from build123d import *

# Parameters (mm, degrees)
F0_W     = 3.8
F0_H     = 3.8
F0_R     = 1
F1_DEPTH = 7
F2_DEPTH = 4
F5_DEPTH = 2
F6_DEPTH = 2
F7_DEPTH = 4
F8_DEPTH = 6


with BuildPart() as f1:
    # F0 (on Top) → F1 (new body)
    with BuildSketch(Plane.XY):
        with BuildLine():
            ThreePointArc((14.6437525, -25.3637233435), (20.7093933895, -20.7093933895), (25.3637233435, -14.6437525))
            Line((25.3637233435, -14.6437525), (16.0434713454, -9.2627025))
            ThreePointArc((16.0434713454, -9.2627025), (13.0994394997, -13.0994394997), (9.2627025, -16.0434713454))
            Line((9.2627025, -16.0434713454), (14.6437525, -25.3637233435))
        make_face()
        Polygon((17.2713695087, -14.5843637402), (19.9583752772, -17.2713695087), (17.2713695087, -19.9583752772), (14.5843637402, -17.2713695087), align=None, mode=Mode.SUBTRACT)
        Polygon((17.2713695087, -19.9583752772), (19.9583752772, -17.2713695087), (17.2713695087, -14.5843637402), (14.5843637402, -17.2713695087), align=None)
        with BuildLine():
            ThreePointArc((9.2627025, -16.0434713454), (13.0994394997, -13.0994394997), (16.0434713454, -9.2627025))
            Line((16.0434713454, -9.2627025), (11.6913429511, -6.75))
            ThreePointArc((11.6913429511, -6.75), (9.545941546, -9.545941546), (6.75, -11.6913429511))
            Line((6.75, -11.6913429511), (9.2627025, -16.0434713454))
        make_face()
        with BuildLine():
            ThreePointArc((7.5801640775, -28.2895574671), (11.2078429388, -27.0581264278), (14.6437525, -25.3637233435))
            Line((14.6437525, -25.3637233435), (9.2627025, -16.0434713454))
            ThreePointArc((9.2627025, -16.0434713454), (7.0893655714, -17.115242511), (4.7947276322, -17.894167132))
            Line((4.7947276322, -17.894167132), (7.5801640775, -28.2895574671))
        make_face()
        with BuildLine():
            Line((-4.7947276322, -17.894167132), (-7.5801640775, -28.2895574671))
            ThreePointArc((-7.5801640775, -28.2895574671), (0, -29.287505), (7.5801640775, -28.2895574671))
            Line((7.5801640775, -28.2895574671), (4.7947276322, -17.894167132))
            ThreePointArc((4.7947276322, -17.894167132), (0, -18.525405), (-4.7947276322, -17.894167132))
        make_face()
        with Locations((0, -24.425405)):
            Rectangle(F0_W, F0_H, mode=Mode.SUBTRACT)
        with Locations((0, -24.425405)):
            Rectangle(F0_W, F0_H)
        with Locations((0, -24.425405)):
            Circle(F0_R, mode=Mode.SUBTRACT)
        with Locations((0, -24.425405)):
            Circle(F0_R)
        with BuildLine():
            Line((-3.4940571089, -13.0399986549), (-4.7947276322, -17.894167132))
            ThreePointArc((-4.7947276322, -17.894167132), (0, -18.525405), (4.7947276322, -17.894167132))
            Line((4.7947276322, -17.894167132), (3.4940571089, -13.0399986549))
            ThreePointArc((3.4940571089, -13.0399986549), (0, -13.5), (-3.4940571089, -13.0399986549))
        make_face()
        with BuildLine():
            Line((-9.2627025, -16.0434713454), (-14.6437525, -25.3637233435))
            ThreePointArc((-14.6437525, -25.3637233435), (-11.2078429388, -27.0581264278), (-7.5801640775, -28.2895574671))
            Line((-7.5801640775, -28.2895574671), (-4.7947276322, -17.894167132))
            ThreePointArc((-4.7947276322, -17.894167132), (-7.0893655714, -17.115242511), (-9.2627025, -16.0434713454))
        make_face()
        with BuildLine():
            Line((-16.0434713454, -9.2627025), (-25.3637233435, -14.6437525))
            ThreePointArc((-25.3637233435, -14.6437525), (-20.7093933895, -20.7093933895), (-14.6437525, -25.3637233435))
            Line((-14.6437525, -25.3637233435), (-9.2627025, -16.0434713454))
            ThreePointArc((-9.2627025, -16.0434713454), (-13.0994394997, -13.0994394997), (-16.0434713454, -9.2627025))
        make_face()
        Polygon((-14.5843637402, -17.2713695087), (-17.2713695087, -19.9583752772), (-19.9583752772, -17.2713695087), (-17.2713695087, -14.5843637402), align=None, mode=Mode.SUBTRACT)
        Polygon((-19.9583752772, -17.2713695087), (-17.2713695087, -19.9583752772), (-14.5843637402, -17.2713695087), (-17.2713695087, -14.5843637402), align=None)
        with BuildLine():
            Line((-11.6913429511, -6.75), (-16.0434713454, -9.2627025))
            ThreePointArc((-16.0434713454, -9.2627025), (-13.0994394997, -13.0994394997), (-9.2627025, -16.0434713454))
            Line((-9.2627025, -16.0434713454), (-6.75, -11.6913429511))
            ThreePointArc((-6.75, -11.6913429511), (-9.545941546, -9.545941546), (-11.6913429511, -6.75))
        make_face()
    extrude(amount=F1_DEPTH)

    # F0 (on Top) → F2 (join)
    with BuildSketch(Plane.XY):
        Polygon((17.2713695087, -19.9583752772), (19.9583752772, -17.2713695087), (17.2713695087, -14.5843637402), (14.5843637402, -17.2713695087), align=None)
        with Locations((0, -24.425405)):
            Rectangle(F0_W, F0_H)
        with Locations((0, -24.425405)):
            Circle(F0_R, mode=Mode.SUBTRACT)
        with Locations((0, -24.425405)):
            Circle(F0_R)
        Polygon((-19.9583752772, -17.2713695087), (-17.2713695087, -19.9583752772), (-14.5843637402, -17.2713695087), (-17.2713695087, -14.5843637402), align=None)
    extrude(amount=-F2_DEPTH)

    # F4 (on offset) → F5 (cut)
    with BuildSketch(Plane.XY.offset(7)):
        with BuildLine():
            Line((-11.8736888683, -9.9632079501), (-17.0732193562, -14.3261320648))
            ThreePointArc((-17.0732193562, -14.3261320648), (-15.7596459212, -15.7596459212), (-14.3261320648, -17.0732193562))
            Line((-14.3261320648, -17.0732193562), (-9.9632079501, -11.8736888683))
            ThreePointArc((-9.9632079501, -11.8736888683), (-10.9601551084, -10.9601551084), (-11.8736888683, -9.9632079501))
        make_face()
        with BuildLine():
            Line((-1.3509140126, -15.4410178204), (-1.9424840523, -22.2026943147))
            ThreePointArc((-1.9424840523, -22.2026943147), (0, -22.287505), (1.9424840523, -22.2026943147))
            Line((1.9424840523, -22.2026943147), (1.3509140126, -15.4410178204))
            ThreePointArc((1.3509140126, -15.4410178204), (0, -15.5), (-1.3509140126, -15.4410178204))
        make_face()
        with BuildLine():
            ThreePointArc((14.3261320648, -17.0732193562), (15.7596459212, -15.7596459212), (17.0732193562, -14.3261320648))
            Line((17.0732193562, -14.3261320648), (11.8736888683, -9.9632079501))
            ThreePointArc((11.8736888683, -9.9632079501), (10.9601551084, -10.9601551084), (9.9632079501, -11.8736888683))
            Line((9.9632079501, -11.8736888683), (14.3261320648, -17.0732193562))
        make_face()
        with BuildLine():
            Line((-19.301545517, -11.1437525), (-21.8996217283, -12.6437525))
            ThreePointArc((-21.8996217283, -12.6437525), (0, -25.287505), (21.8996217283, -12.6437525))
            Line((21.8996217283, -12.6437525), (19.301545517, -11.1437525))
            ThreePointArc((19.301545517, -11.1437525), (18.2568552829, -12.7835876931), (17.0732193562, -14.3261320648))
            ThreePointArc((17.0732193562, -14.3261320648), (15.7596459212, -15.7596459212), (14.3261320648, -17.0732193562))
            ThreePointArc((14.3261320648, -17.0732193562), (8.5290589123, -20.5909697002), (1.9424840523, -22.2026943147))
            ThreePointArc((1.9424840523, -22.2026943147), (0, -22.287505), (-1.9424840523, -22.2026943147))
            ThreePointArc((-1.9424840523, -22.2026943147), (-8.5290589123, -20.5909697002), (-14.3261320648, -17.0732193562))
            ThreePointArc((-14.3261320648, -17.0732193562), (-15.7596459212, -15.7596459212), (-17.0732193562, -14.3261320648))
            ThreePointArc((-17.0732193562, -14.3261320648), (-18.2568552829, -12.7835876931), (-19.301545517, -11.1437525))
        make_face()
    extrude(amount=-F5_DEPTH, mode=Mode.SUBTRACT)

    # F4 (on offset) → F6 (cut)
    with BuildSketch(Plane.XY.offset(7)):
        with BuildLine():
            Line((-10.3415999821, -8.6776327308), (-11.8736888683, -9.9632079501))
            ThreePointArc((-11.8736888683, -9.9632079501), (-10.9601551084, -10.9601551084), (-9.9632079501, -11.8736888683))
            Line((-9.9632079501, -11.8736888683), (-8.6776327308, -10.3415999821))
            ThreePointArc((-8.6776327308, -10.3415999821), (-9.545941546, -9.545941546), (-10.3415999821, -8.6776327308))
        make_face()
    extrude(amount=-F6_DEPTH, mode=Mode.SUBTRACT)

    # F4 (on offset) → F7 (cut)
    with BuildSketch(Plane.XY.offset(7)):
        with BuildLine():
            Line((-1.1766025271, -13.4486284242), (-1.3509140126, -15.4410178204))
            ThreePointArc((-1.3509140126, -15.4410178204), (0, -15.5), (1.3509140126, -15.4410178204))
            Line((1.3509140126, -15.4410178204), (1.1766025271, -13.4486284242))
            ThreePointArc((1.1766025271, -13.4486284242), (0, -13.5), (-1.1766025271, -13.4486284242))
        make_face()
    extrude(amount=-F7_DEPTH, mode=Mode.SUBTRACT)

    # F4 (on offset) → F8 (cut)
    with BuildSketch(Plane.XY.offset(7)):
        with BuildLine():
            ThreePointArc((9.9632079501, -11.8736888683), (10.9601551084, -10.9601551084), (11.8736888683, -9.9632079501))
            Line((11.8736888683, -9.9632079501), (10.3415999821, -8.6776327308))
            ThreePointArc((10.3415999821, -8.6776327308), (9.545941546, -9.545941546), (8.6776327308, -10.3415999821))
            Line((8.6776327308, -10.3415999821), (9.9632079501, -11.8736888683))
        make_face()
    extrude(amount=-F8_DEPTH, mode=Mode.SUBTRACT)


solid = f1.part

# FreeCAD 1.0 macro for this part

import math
import FreeCAD as App
import Part
import Sketcher
from FreeCAD import Vector
Q = App.Units.Quantity


def add_polygon(sketch, points):
    """Adds a closed chain of lines whose ends are joined by coincident constraints."""
    first, n = sketch.GeometryCount, len(points)
    for a, b in zip(points, points[1:] + points[:1]):
        sketch.addGeometry(Part.LineSegment(App.Vector(*a, 0), App.Vector(*b, 0)), False)
    for i in range(n):
        sketch.addConstraint(Sketcher.Constraint("Coincident", first + i, 2, first + (i + 1) % n, 1))

doc = App.newDocument("Part")
params = doc.addObject("Spreadsheet::Sheet", "Params")
for row, (alias, value) in enumerate([
    ("sketch1_radius", "13.5 mm"),
    ("pad1_length", "7 mm"),
    ("sketch2_width", "3.8 mm"),
    ("sketch2_length", "3.8 mm"),
    ("pad2_length", "4 mm"),
    ("sketch3_radius", "15.5 mm"),
    ("sketch3_length", "3 mm"),
    ("pocket1_length", "2 mm"),
    ("sketch4_radius", "15.5 mm"),
    ("sketch4_radius2", "13.5 mm"),
    ("pocket2_length", "2 mm"),
    ("sketch5_radius", "15.5 mm"),
    ("sketch5_radius2", "13.5 mm"),
    ("pocket3_length", "4 mm"),
    ("sketch6_radius", "15.5 mm"),
    ("sketch6_radius2", "13.5 mm"),
    ("pocket4_length", "6 mm"),
], start=1):
    params.set(f"A{row}", alias)
    params.set(f"B{row}", "=" + value)
    params.setAlias(f"B{row}", alias)

body = doc.addObject("PartDesign::Body", "Body")

sketch1 = body.newObject("Sketcher::SketchObject", "Sketch")
sketch1.AttachmentSupport = (doc.getObject("XY_Plane"), [""])
sketch1.MapMode = "FlatFace"
sketch1.addGeometry([
    Part.ArcOfCircle(Part.Circle(Vector(0, 0, 0), Vector(0, 0, 1), 29.287505), math.radians(-60), math.radians(-30)),
    Part.LineSegment(Vector(25.363723, -14.643752, 0), Vector(16.043471, -9.262702, 0)),
    Part.LineSegment(Vector(16.043471, -9.262702, 0), Vector(11.691343, -6.75, 0)),
    Part.ArcOfCircle(Part.Circle(Vector(0, 0, 0), Vector(0, 0, 1), 13.5), math.radians(-60), math.radians(-30)),
    Part.LineSegment(Vector(6.75, -11.691343, 0), Vector(9.262702, -16.043471, 0)),
    Part.ArcOfCircle(Part.Circle(Vector(0, 0, 0), Vector(0, 0, 1), 18.525405), math.radians(-75), math.radians(-60)),
    Part.LineSegment(Vector(4.794728, -17.894167, 0), Vector(3.494057, -13.039999, 0)),
    Part.ArcOfCircle(Part.Circle(Vector(0, 0, 0), Vector(0, 0, 1), 13.5), math.radians(-105), math.radians(-75)),
    Part.LineSegment(Vector(-3.494057, -13.039999, 0), Vector(-4.794728, -17.894167, 0)),
    Part.ArcOfCircle(Part.Circle(Vector(0, 0, 0), Vector(0, 0, 1), 18.525405), math.radians(-120), math.radians(-105)),
    Part.LineSegment(Vector(-9.262702, -16.043471, 0), Vector(-6.75, -11.691343, 0)),
    Part.ArcOfCircle(Part.Circle(Vector(0, 0, 0), Vector(0, 0, 1), 13.5), math.radians(-150), math.radians(-120)),
    Part.LineSegment(Vector(-11.691343, -6.75, 0), Vector(-16.043471, -9.262702, 0)),
    Part.LineSegment(Vector(-16.043471, -9.262702, 0), Vector(-25.363723, -14.643752, 0)),
    Part.ArcOfCircle(Part.Circle(Vector(0, 0, 0), Vector(0, 0, 1), 29.287505), math.radians(-150), math.radians(-120)),
    Part.ArcOfCircle(Part.Circle(Vector(0, 0, 0), Vector(0, 0, 1), 29.287505), math.radians(-120), math.radians(-105)),
    Part.ArcOfCircle(Part.Circle(Vector(0, 0, 0), Vector(0, 0, 1), 29.287505), math.radians(-105), math.radians(-75)),
    Part.ArcOfCircle(Part.Circle(Vector(0, 0, 0), Vector(0, 0, 1), 29.287505), math.radians(-75), math.radians(-60)),
], False)
sketch1.addConstraint([
    Sketcher.Constraint("Coincident", 0, 2, 1, 1),
    Sketcher.Constraint("Coincident", 1, 2, 2, 1),
    Sketcher.Constraint("Coincident", 2, 2, 3, 2),
    Sketcher.Constraint("Coincident", 3, 1, 4, 1),
    Sketcher.Constraint("Coincident", 4, 2, 5, 2),
    Sketcher.Constraint("Coincident", 5, 1, 6, 1),
    Sketcher.Constraint("Coincident", 6, 2, 7, 2),
    Sketcher.Constraint("Coincident", 7, 1, 8, 1),
    Sketcher.Constraint("Coincident", 8, 2, 9, 2),
    Sketcher.Constraint("Coincident", 9, 1, 10, 1),
    Sketcher.Constraint("Coincident", 10, 2, 11, 2),
    Sketcher.Constraint("Coincident", 11, 1, 12, 1),
    Sketcher.Constraint("Coincident", 12, 2, 13, 1),
    Sketcher.Constraint("Coincident", 13, 2, 14, 1),
    Sketcher.Constraint("Tangent", 14, 2, 15, 1),
    Sketcher.Constraint("Tangent", 15, 2, 16, 1),
    Sketcher.Constraint("Tangent", 16, 2, 17, 1),
    Sketcher.Constraint("Tangent", 17, 2, 0, 1),
    Sketcher.Constraint("Coincident", 0, 3, -1, 1),
    Sketcher.Constraint("Coincident", 3, 3, -1, 1),
    Sketcher.Constraint("Coincident", 5, 3, -1, 1),
    Sketcher.Constraint("Coincident", 7, 3, -1, 1),
    Sketcher.Constraint("Coincident", 9, 3, -1, 1),
    Sketcher.Constraint("Coincident", 11, 3, -1, 1),
    Sketcher.Constraint("Coincident", 14, 3, -1, 1),
    Sketcher.Constraint("Coincident", 16, 3, -1, 1),
    Sketcher.Constraint("Equal", 3, 7),
    Sketcher.Constraint("Equal", 5, 9),
    Sketcher.Constraint("Equal", 7, 11),
    Sketcher.Constraint("Symmetric", 1, 2, 12, 2, -2),
    Sketcher.Constraint("Parallel", 1, 2),
    Sketcher.Constraint("Perpendicular", 2, 10),
    Sketcher.Constraint("Perpendicular", 4, 12),
    Sketcher.Constraint("Parallel", 12, 13),
    Sketcher.Constraint("Horizontal", 6, 2, 7, 1),
    Sketcher.Constraint("Horizontal", 5, 1, 8, 2),
    Sketcher.Constraint("Horizontal", 4, 2, 9, 1),
    Sketcher.Constraint("Horizontal", 3, 1, 10, 2),
    Sketcher.Constraint("Horizontal", 15, 2, 16, 2),
    Sketcher.Constraint("Horizontal", 14, 2, 17, 2),
    Sketcher.Constraint("Equal", 2, 4),
    Sketcher.Constraint("Radius", 3, 13.5),
    Sketcher.Constraint("Angle", 1, Q("150 deg")),
    Sketcher.Constraint("Angle", 6, Q("105 deg")),
    Sketcher.Constraint("DistanceY", 2, 2, -1, 1, 6.75),
    Sketcher.Constraint("DistanceX", -1, 1, 3, 1, 6.75),
    Sketcher.Constraint("DistanceY", 6, 2, -1, 1, 13.039999),
    Sketcher.Constraint("Radius", 0, 29.287505),
    Sketcher.Constraint("Radius", 5, 18.525405),
    Sketcher.Constraint("DistanceX", 14, 2, 9, 1, 5.38105),
    Sketcher.Constraint("DistanceX", 14, 2, 15, 2, 7.063588),
])
sketch1.setExpression("Constraints[41]", "Params.sketch1_radius")
pad1 = body.newObject("PartDesign::Pad", "Pad")
pad1.Profile = sketch1
pad1.setExpression("Length", "Params.pad1_length")

sketch2 = body.newObject("Sketcher::SketchObject", "Sketch001")
sketch2.AttachmentSupport = (doc.getObject("XY_Plane"), [""])
sketch2.MapMode = "FlatFace"
add_polygon(sketch2, [(17.27137, -19.958375), (19.958375, -17.27137), (17.27137, -14.584364), (14.584364, -17.27137)])
add_polygon(sketch2, [(-1.9, -22.525405), (-1.9, -26.325405), (1.9, -26.325405), (1.9, -22.525405)])
add_polygon(sketch2, [(-19.958375, -17.27137), (-17.27137, -19.958375), (-14.584364, -17.27137), (-17.27137, -14.584364)])
sketch2.addConstraint([
    Sketcher.Constraint("Vertical", 4),
    Sketcher.Constraint("Horizontal", 5),
    Sketcher.Constraint("Vertical", 6),
    Sketcher.Constraint("Horizontal", 7),
    Sketcher.Constraint("Symmetric", 3, 2, 8, 2, -2),
    Sketcher.Constraint("Symmetric", 2, 2, 9, 2, -2),
    Sketcher.Constraint("Symmetric", 1, 2, 10, 2, -2),
    Sketcher.Constraint("Symmetric", 0, 2, 11, 2, -2),
    Sketcher.Constraint("Perpendicular", 0, 1),
    Sketcher.Constraint("Perpendicular", 1, 2),
    Sketcher.Constraint("Perpendicular", 2, 3),
    Sketcher.Constraint("Parallel", 3, 8),
    Sketcher.Constraint("Horizontal", 0, 2, 2, 2),
    Sketcher.Constraint("Equal", 7, 4),
    Sketcher.Constraint("DistanceX", 5, 1, 5, 2, 3.8),
    Sketcher.Constraint("Distance", 0, 3.8),
    Sketcher.Constraint("DistanceX", 4, 2, -1, 1, 1.9),
    Sketcher.Constraint("DistanceY", 0, 2, -1, 1, 17.27137),
    Sketcher.Constraint("DistanceX", -1, 1, 1, 2, 17.27137),
    Sketcher.Constraint("DistanceY", 4, 2, 3, 2, 6.36703),
])
sketch2.setExpression("Constraints[26]", "Params.sketch2_width")
sketch2.setExpression("Constraints[27]", "Params.sketch2_length")
pad2 = body.newObject("PartDesign::Pad", "Pad001")
pad2.Profile = sketch2
pad2.setExpression("Length", "Params.pad2_length")
pad2.Reversed = True

sketch3 = body.newObject("Sketcher::SketchObject", "Sketch002")
sketch3.AttachmentSupport = (doc.getObject("XY_Plane"), [""])
sketch3.MapMode = "FlatFace"
sketch3.AttachmentOffset = App.Placement(Vector(0, 0, 7), App.Rotation())
sketch3.addGeometry([
    Part.LineSegment(Vector(-11.873689, -9.963208, 0), Vector(-17.073219, -14.326132, 0)),
    Part.ArcOfCircle(Part.Circle(Vector(0, 0, 0), Vector(0, 0, 1), 22.287505), math.radians(-150), math.radians(-140)),
    Part.LineSegment(Vector(-19.301546, -11.143752, 0), Vector(-21.899622, -12.643752, 0)),
    Part.ArcOfCircle(Part.Circle(Vector(0, 0, 0), Vector(0, 0, 1), 25.287505), math.radians(-150), math.radians(-30)),
    Part.LineSegment(Vector(21.899622, -12.643752, 0), Vector(19.301546, -11.143752, 0)),
    Part.ArcOfCircle(Part.Circle(Vector(0, 0, 0), Vector(0, 0, 1), 22.287505), math.radians(-40), math.radians(-30)),
    Part.LineSegment(Vector(17.073219, -14.326132, 0), Vector(11.873689, -9.963208, 0)),
    Part.ArcOfCircle(Part.Circle(Vector(0, 0, 0), Vector(0, 0, 1), 15.5), math.radians(-50), math.radians(-40)),
    Part.LineSegment(Vector(9.963208, -11.873689, 0), Vector(14.326132, -17.073219, 0)),
    Part.ArcOfCircle(Part.Circle(Vector(0, 0, 0), Vector(0, 0, 1), 22.287505), math.radians(-85), math.radians(-50)),
    Part.LineSegment(Vector(1.942484, -22.202694, 0), Vector(1.350914, -15.441018, 0)),
    Part.ArcOfCircle(Part.Circle(Vector(0, 0, 0), Vector(0, 0, 1), 15.5), math.radians(-95), math.radians(-85)),
    Part.LineSegment(Vector(-1.350914, -15.441018, 0), Vector(-1.942484, -22.202694, 0)),
    Part.ArcOfCircle(Part.Circle(Vector(0, 0, 0), Vector(0, 0, 1), 22.287505), math.radians(-130), math.radians(-95)),
    Part.LineSegment(Vector(-14.326132, -17.073219, 0), Vector(-9.963208, -11.873689, 0)),
    Part.ArcOfCircle(Part.Circle(Vector(0, 0, 0), Vector(0, 0, 1), 15.5), math.radians(-140), math.radians(-130)),
], False)
sketch3.addConstraint([
    Sketcher.Constraint("Coincident", 0, 2, 1, 2),
    Sketcher.Constraint("Coincident", 1, 1, 2, 1),
    Sketcher.Constraint("Coincident", 2, 2, 3, 1),
    Sketcher.Constraint("Coincident", 3, 2, 4, 1),
    Sketcher.Constraint("Coincident", 4, 2, 5, 2),
    Sketcher.Constraint("Coincident", 5, 1, 6, 1),
    Sketcher.Constraint("Coincident", 6, 2, 7, 2),
    Sketcher.Constraint("Coincident", 7, 1, 8, 1),
    Sketcher.Constraint("Coincident", 8, 2, 9, 2),
    Sketcher.Constraint("Coincident", 9, 1, 10, 1),
    Sketcher.Constraint("Coincident", 10, 2, 11, 2),
    Sketcher.Constraint("Coincident", 11, 1, 12, 1),
    Sketcher.Constraint("Coincident", 12, 2, 13, 2),
    Sketcher.Constraint("Coincident", 13, 1, 14, 1),
    Sketcher.Constraint("Coincident", 14, 2, 15, 2),
    Sketcher.Constraint("Coincident", 15, 1, 0, 1),
    Sketcher.Constraint("Coincident", 1, 3, -1, 1),
    Sketcher.Constraint("Coincident", 3, 3, -1, 1),
    Sketcher.Constraint("Coincident", 5, 3, -1, 1),
    Sketcher.Constraint("Coincident", 7, 3, -1, 1),
    Sketcher.Constraint("Coincident", 9, 3, -1, 1),
    Sketcher.Constraint("Coincident", 11, 3, -1, 1),
    Sketcher.Constraint("Coincident", 13, 3, -1, 1),
    Sketcher.Constraint("Coincident", 15, 3, -1, 1),
    Sketcher.Constraint("Equal", 1, 5),
    Sketcher.Constraint("Equal", 5, 9),
    Sketcher.Constraint("Equal", 7, 11),
    Sketcher.Constraint("Equal", 9, 13),
    Sketcher.Constraint("Equal", 11, 15),
    Sketcher.Constraint("Perpendicular", 0, 8),
    Sketcher.Constraint("Perpendicular", 6, 14),
    Sketcher.Constraint("Horizontal", 2, 2, 3, 2),
    Sketcher.Constraint("Horizontal", 1, 1, 4, 2),
    Sketcher.Constraint("Horizontal", 0, 2, 5, 1),
    Sketcher.Constraint("Horizontal", 10, 2, 11, 1),
    Sketcher.Constraint("Horizontal", 9, 1, 12, 2),
    Sketcher.Constraint("Horizontal", 8, 2, 13, 1),
    Sketcher.Constraint("Horizontal", 7, 1, 14, 2),
    Sketcher.Constraint("Radius", 7, 15.5),
    Sketcher.Constraint("Angle", 0, Q("-140 deg")),
    Sketcher.Constraint("Angle", 2, Q("-150 deg")),
    Sketcher.Constraint("Angle", 10, Q("95 deg")),
    Sketcher.Constraint("Distance", 2, 3.0),
    Sketcher.Constraint("Radius", 1, 22.287505),
    Sketcher.Constraint("DistanceY", 8, 2, 10, 2, 1.632202),
    Sketcher.Constraint("DistanceX", 11, 1, 9, 1, 3.293398),
    Sketcher.Constraint("DistanceX", 0, 2, -1, 1, 17.073219),
    Sketcher.Constraint("DistanceX", 2, 2, -1, 1, 21.899622),
])
sketch3.setExpression("Constraints[38]", "Params.sketch3_radius")
sketch3.setExpression("Constraints[42]", "Params.sketch3_length")
pocket1 = body.newObject("PartDesign::Pocket", "Pocket")
pocket1.Profile = sketch3
pocket1.setExpression("Length", "Params.pocket1_length")

sketch4 = body.newObject("Sketcher::SketchObject", "Sketch003")
sketch4.AttachmentSupport = (doc.getObject("XY_Plane"), [""])
sketch4.MapMode = "FlatFace"
sketch4.AttachmentOffset = App.Placement(Vector(0, 0, 7), App.Rotation())
sketch4.addGeometry([
    Part.LineSegment(Vector(-10.3416, -8.677633, 0), Vector(-11.873689, -9.963208, 0)),
    Part.ArcOfCircle(Part.Circle(Vector(0, 0, 0), Vector(0, 0, 1), 15.5), math.radians(-140), math.radians(-130)),
    Part.LineSegment(Vector(-9.963208, -11.873689, 0), Vector(-8.677633, -10.3416, 0)),
    Part.ArcOfCircle(Part.Circle(Vector(0, 0, 0), Vector(0, 0, 1), 13.5), math.radians(-140), math.radians(-130)),
], False)
sketch4.addConstraint([
    Sketcher.Constraint("Coincident", 0, 2, 1, 1),
    Sketcher.Constraint("Coincident", 1, 2, 2, 1),
    Sketcher.Constraint("Coincident", 2, 2, 3, 2),
    Sketcher.Constraint("Coincident", 3, 1, 0, 1),
    Sketcher.Constraint("Coincident", 1, 3, -1, 1),
    Sketcher.Constraint("Coincident", 3, 3, -1, 1),
    Sketcher.Constraint("Radius", 1, 15.5),
    Sketcher.Constraint("Radius", 3, 13.5),
    Sketcher.Constraint("Angle", 0, Q("-140 deg")),
    Sketcher.Constraint("Angle", 2, Q("50 deg")),
    Sketcher.Constraint("DistanceY", 2, 2, -1, 1, 10.3416),
    Sketcher.Constraint("DistanceX", 3, 1, -1, 1, 10.3416),
])
sketch4.setExpression("Constraints[6]", "Params.sketch4_radius")
sketch4.setExpression("Constraints[7]", "Params.sketch4_radius2")
pocket2 = body.newObject("PartDesign::Pocket", "Pocket001")
pocket2.Profile = sketch4
pocket2.setExpression("Length", "Params.pocket2_length")

sketch5 = body.newObject("Sketcher::SketchObject", "Sketch004")
sketch5.AttachmentSupport = (doc.getObject("XY_Plane"), [""])
sketch5.MapMode = "FlatFace"
sketch5.AttachmentOffset = App.Placement(Vector(0, 0, 7), App.Rotation())
sketch5.addGeometry([
    Part.LineSegment(Vector(-1.176603, -13.448628, 0), Vector(-1.350914, -15.441018, 0)),
    Part.ArcOfCircle(Part.Circle(Vector(0, 0, 0), Vector(0, 0, 1), 15.5), math.radians(-95), math.radians(-85)),
    Part.LineSegment(Vector(1.350914, -15.441018, 0), Vector(1.176603, -13.448628, 0)),
    Part.ArcOfCircle(Part.Circle(Vector(0, 0, 0), Vector(0, 0, 1), 13.5), math.radians(-95), math.radians(-85)),
], False)
sketch5.addConstraint([
    Sketcher.Constraint("Coincident", 0, 2, 1, 1),
    Sketcher.Constraint("Coincident", 1, 2, 2, 1),
    Sketcher.Constraint("Coincident", 2, 2, 3, 2),
    Sketcher.Constraint("Coincident", 3, 1, 0, 1),
    Sketcher.Constraint("Coincident", 1, 3, -1, 1),
    Sketcher.Constraint("Coincident", 3, 3, -1, 1),
    Sketcher.Constraint("Horizontal", 0, 2, 1, 2),
    Sketcher.Constraint("Horizontal", 2, 2, 3, 1),
    Sketcher.Constraint("Radius", 1, 15.5),
    Sketcher.Constraint("Radius", 3, 13.5),
    Sketcher.Constraint("Angle", 0, Q("-95 deg")),
    Sketcher.Constraint("DistanceY", 2, 2, -1, 1, 13.448628),
])
sketch5.setExpression("Constraints[8]", "Params.sketch5_radius")
sketch5.setExpression("Constraints[9]", "Params.sketch5_radius2")
pocket3 = body.newObject("PartDesign::Pocket", "Pocket002")
pocket3.Profile = sketch5
pocket3.setExpression("Length", "Params.pocket3_length")

sketch6 = body.newObject("Sketcher::SketchObject", "Sketch005")
sketch6.AttachmentSupport = (doc.getObject("XY_Plane"), [""])
sketch6.MapMode = "FlatFace"
sketch6.AttachmentOffset = App.Placement(Vector(0, 0, 7), App.Rotation())
sketch6.addGeometry([
    Part.ArcOfCircle(Part.Circle(Vector(0, 0, 0), Vector(0, 0, 1), 15.5), math.radians(-50), math.radians(-40)),
    Part.LineSegment(Vector(11.873689, -9.963208, 0), Vector(10.3416, -8.677633, 0)),
    Part.ArcOfCircle(Part.Circle(Vector(0, 0, 0), Vector(0, 0, 1), 13.5), math.radians(-50), math.radians(-40)),
    Part.LineSegment(Vector(8.677633, -10.3416, 0), Vector(9.963208, -11.873689, 0)),
], False)
sketch6.addConstraint([
    Sketcher.Constraint("Coincident", 0, 2, 1, 1),
    Sketcher.Constraint("Coincident", 1, 2, 2, 2),
    Sketcher.Constraint("Coincident", 2, 1, 3, 1),
    Sketcher.Constraint("Coincident", 3, 2, 0, 1),
    Sketcher.Constraint("Coincident", 0, 3, -1, 1),
    Sketcher.Constraint("Coincident", 2, 3, -1, 1),
    Sketcher.Constraint("Radius", 0, 15.5),
    Sketcher.Constraint("Radius", 2, 13.5),
    Sketcher.Constraint("Angle", 1, Q("140 deg")),
    Sketcher.Constraint("Angle", 3, Q("-50 deg")),
    Sketcher.Constraint("DistanceX", -1, 1, 1, 2, 10.3416),
    Sketcher.Constraint("DistanceY", 2, 1, -1, 1, 10.3416),
])
sketch6.setExpression("Constraints[6]", "Params.sketch6_radius")
sketch6.setExpression("Constraints[7]", "Params.sketch6_radius2")
pocket4 = body.newObject("PartDesign::Pocket", "Pocket003")
pocket4.Profile = sketch6
pocket4.setExpression("Length", "Params.pocket4_length")

doc.recompute()
